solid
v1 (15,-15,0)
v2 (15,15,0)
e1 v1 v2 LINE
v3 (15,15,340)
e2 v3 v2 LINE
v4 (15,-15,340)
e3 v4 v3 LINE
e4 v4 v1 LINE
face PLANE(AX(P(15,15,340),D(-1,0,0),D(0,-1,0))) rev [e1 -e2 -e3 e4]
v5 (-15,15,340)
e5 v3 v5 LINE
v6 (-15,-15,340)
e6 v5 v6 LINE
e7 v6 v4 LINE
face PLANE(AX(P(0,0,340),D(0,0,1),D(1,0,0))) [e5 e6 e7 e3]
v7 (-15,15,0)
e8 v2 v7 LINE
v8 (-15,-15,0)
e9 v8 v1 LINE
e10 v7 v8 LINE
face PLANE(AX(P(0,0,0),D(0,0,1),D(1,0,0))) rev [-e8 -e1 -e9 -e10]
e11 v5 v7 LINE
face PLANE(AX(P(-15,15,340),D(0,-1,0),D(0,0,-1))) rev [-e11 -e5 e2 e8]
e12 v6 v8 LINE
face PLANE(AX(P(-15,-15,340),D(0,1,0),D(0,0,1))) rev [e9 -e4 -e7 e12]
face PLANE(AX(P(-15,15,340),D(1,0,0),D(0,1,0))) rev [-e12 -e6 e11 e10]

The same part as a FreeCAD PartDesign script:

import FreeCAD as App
import Part
import Sketcher

V = App.Vector


def add_polygon(sketch, points):
    """Adds a closed chain of lines whose ends are joined by coincident constraints."""
    first, n = sketch.GeometryCount, len(points)
    for a, b in zip(points, points[1:] + points[:1]):
        sketch.addGeometry(Part.LineSegment(App.Vector(*a, 0), App.Vector(*b, 0)), False)
    for i in range(n):
        sketch.addConstraint(Sketcher.Constraint("Coincident", first + i, 2, first + (i + 1) % n, 1))

doc = App.newDocument("Part")
body = doc.addObject("PartDesign::Body", "Body")

sketch1 = body.newObject("Sketcher::SketchObject", "Sketch")
sketch1.AttachmentSupport = (doc.getObject("XY_Plane"), [""])
sketch1.MapMode = "FlatFace"
add_polygon(sketch1, [(-15, 15), (-15, -15), (15, -15), (15, 15)])
sketch1.addConstraint(Sketcher.Constraint("Vertical", 0))
sketch1.addConstraint(Sketcher.Constraint("Horizontal", 1))
sketch1.addConstraint(Sketcher.Constraint("Vertical", 2))
sketch1.addConstraint(Sketcher.Constraint("Horizontal", 3))
sketch1.addConstraint(Sketcher.Constraint("Symmetric", 0, 2, 2, 2, -1, 1))
sketch1.addConstraint(Sketcher.Constraint("Equal", 3, 0))
sketch1.addConstraint(Sketcher.Constraint("DistanceX", 1, 1, 1, 2, 30.0))
pad1 = body.newObject("PartDesign::Pad", "Pad")
pad1.Profile = sketch1
pad1.Length = 340

doc.recompute()
